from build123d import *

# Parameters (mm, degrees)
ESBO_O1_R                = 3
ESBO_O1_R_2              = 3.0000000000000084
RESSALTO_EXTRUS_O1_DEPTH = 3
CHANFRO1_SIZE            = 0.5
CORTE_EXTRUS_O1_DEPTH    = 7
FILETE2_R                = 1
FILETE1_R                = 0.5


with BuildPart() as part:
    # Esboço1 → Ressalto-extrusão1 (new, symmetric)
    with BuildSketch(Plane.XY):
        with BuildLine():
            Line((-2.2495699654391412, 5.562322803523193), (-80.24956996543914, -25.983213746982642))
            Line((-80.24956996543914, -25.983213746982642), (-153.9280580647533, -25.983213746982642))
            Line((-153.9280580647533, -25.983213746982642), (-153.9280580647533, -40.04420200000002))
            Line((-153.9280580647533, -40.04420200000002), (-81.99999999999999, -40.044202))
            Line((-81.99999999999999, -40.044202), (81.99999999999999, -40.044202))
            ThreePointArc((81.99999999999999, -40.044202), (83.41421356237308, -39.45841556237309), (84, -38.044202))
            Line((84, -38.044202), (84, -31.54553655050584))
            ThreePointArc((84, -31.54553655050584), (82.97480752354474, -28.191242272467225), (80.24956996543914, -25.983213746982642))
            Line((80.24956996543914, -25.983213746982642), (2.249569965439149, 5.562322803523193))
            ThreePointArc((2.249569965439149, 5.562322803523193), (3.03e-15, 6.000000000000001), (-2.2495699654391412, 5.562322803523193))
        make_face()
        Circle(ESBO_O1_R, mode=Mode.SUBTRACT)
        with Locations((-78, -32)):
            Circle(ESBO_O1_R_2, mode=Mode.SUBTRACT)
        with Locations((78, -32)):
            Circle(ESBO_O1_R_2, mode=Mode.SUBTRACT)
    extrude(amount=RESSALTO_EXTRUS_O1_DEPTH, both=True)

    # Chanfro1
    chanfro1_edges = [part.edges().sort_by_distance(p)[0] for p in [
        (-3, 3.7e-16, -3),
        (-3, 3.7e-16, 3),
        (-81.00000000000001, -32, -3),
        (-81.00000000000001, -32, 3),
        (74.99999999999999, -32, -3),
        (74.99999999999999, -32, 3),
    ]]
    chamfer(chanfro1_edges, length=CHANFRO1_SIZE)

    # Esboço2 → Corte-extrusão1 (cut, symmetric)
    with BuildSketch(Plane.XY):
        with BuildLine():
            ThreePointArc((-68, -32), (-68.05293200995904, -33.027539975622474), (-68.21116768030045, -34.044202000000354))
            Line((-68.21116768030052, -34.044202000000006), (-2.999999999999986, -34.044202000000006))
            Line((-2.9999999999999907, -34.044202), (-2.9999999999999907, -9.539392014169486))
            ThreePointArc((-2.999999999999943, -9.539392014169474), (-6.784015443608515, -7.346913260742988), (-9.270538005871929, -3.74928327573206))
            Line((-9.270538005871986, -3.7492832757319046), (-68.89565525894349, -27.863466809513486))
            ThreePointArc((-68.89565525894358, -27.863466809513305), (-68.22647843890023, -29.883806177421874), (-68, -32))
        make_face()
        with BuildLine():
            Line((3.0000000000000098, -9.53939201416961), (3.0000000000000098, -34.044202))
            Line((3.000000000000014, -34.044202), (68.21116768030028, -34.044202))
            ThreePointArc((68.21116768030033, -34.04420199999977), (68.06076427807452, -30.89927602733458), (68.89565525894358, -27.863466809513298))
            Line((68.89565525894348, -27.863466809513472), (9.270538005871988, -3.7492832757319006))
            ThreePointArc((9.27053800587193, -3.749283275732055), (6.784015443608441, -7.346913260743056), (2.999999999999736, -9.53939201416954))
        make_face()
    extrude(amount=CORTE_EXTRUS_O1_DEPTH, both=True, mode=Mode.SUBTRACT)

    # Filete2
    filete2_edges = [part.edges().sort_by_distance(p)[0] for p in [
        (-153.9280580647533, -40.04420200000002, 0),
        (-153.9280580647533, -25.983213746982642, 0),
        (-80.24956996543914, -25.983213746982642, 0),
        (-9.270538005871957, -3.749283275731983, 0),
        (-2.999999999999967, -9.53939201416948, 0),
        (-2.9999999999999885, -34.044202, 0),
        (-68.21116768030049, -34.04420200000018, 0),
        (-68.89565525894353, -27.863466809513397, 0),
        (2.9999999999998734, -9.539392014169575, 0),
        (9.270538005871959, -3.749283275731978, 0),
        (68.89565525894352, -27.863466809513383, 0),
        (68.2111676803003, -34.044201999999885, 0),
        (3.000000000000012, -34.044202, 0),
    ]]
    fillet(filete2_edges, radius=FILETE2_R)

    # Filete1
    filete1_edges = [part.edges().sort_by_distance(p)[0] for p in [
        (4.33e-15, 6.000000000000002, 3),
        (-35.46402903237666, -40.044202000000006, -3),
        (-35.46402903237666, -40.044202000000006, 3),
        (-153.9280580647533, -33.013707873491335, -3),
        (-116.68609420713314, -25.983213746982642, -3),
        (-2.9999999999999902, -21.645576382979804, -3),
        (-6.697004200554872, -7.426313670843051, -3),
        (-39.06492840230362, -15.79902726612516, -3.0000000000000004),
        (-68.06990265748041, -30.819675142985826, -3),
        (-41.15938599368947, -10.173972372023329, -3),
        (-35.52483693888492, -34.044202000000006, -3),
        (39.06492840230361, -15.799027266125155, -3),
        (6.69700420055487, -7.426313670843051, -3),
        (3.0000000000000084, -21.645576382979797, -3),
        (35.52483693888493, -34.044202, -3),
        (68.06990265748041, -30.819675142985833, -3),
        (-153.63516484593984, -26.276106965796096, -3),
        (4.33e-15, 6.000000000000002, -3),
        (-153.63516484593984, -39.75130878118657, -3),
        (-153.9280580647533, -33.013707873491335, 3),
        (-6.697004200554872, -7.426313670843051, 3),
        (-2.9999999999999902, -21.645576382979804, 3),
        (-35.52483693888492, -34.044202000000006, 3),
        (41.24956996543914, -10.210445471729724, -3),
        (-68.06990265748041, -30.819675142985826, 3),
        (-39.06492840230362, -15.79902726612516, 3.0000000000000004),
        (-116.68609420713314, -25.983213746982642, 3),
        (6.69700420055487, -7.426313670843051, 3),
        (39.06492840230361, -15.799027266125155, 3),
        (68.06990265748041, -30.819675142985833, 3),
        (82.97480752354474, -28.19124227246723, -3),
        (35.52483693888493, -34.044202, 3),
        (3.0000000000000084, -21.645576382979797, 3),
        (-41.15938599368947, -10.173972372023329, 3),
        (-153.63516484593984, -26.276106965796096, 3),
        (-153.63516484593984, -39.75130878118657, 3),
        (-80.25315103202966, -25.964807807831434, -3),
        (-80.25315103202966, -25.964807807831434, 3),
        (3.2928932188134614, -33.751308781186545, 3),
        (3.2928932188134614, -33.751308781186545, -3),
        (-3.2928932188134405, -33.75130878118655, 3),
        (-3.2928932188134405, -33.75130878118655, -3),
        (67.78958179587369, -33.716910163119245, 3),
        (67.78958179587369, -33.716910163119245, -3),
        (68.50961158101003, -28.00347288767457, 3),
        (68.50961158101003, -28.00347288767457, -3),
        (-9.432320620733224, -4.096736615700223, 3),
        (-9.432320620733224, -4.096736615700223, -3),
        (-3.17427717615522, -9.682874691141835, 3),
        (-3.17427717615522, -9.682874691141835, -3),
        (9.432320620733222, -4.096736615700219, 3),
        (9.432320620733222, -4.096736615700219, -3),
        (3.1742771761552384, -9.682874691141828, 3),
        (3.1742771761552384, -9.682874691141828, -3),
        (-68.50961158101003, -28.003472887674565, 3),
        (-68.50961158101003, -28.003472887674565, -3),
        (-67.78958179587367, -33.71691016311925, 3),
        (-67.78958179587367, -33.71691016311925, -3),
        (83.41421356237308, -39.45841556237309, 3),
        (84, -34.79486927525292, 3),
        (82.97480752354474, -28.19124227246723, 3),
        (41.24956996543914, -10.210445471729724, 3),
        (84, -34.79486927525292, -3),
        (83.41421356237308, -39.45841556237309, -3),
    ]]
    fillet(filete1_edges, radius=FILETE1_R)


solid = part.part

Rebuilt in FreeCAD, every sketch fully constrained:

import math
import FreeCAD as App
import Part
import Sketcher
Q = App.Units.Quantity


def edges_at(feature, points):
    """Names of the edges that pass closest to the given points."""
    edges = feature.Shape.Edges
    near = lambda p: min(range(len(edges)), key=lambda i: edges[i].distToShape(Part.Vertex(*p))[0])
    return sorted({f"Edge{near(p) + 1}" for p in points})

doc = App.newDocument("Part")
body = doc.addObject("PartDesign::Body", "Body")

# Sketch on XY plane
sketch1 = doc.addObject("Sketcher::SketchObject", "Sketch")
body.addObject(sketch1)
sketch1.AttachmentSupport = (doc.XY_Plane, [""])
sketch1.MapMode = "FlatFace"
sketch1.addGeometry([
    Part.LineSegment(App.Vector(-2.2, 5.6, 0), App.Vector(-80.2, -26, 0)),  # 0
    Part.LineSegment(App.Vector(-80.2, -26, 0), App.Vector(-153.9, -26, 0)),  # 1
    Part.LineSegment(App.Vector(-153.9, -26, 0), App.Vector(-153.9, -40, 0)),  # 2
    Part.LineSegment(App.Vector(-153.9, -40, 0), App.Vector(82, -40, 0)),  # 3
    Part.ArcOfCircle(Part.Circle(App.Vector(82, -38, 0), App.Vector(0, 0, 1), 2), math.radians(-90), math.radians(0)),  # 4
    Part.LineSegment(App.Vector(84, -38, 0), App.Vector(84, -31.5, 0)),  # 5
    Part.ArcOfCircle(Part.Circle(App.Vector(78, -31.5, 0), App.Vector(0, 0, 1), 6), math.radians(0), math.radians(68)),  # 6
    Part.LineSegment(App.Vector(80.2, -26, 0), App.Vector(2.2, 5.6, 0)),  # 7
    Part.ArcOfCircle(Part.Circle(App.Vector(0, 0, 0), App.Vector(0, 0, 1), 6), math.radians(68), math.radians(112)),  # 8
    Part.Circle(App.Vector(-78, -32, 0), App.Vector(0, 0, 1), 3),  # 9
    Part.Circle(App.Vector(78, -32, 0), App.Vector(0, 0, 1), 3),  # 10
    Part.Circle(App.Vector(0, 0, 0), App.Vector(0, 0, 1), 3),  # 11
], False)
sketch1.addConstraint([
    Sketcher.Constraint("Coincident", 0, 2, 1, 1),
    Sketcher.Constraint("Coincident", 1, 2, 2, 1),
    Sketcher.Constraint("Coincident", 2, 2, 3, 1),
    Sketcher.Constraint("Tangent", 3, 2, 4, 1),
    Sketcher.Constraint("Tangent", 4, 2, 5, 1),
    Sketcher.Constraint("Tangent", 5, 2, 6, 1),
    Sketcher.Constraint("Tangent", 6, 2, 7, 1),
    Sketcher.Constraint("Tangent", 7, 2, 8, 1),
    Sketcher.Constraint("Tangent", 8, 2, 0, 1),
    Sketcher.Constraint("Horizontal", 1),
    Sketcher.Constraint("Vertical", 2),
    Sketcher.Constraint("Horizontal", 3),
    Sketcher.Constraint("Vertical", 5),
    Sketcher.Constraint("Coincident", 8, 3, -1, 1),
    Sketcher.Constraint("Coincident", 11, 3, -1, 1),
    Sketcher.Constraint("Equal", 6, 8),
    Sketcher.Constraint("Equal", 9, 10),
    Sketcher.Constraint("Equal", 10, 11),
    Sketcher.Constraint("Symmetric", 9, 3, 10, 3, -2),
    Sketcher.Constraint("Symmetric", 0, 2, 6, 2, -2),
    Sketcher.Constraint("Vertical", 6, 3, 10, 3),
    Sketcher.Constraint("Diameter", 9, Q("6 mm")),
    Sketcher.Constraint("Radius", 4, Q("2 mm")),
    Sketcher.Constraint("Radius", 6, Q("6 mm")),
    Sketcher.Constraint("DistanceX", -1, 1, 4, 3, Q("82 mm")),
    Sketcher.Constraint("DistanceY", 9, 3, -1, 1, Q("32 mm")),
    Sketcher.Constraint("DistanceX", 1, 2, 1, 1, Q("73.678488 mm")),
    Sketcher.Constraint("DistanceX", 3, 1, 3, 2, Q("235.928058 mm")),
    Sketcher.Constraint("DistanceY", 2, 2, 2, 1, Q("14.060988 mm")),
])
pad1 = doc.addObject("PartDesign::Pad", "Pad")
body.addObject(pad1)
pad1.Profile = sketch1
pad1.Length = 6
pad1.Midplane = True
doc.recompute()

chamfer = doc.addObject("PartDesign::Chamfer", "Chamfer")
body.addObject(chamfer)
chamfer.Base = (pad1, edges_at(pad1, [
    (-3, 0, -3),
    (-3, 0, 3),
    (-81, -32, -3),
    (-81, -32, 3),
    (75, -32, -3),
    (75, -32, 3),
]))
chamfer.Size = 0.5

# Sketch on XY plane
sketch2 = doc.addObject("Sketcher::SketchObject", "Sketch001")
body.addObject(sketch2)
sketch2.AttachmentSupport = (doc.XY_Plane, [""])
sketch2.MapMode = "FlatFace"
sketch2.addGeometry([
    Part.LineSegment(App.Vector(-68, -34, 0), App.Vector(-3, -34, 0)),  # 0
    Part.LineSegment(App.Vector(-3, -34, 0), App.Vector(-3, -10, 0)),  # 1
    Part.ArcOfCircle(Part.Circle(App.Vector(0, 0, 0), App.Vector(0, 0, 1), 10), math.radians(-158), math.radians(-107)),  # 2
    Part.LineSegment(App.Vector(-9, -4, 0), App.Vector(-69, -28, 0)),  # 3
    Part.ArcOfCircle(Part.Circle(App.Vector(-78, -32, 0), App.Vector(0, 0, 1), 10), math.radians(-12), math.radians(24)),  # 4
    Part.LineSegment(App.Vector(3, -10, 0), App.Vector(3, -34, 0)),  # 5
    Part.LineSegment(App.Vector(3, -34, 0), App.Vector(68, -34, 0)),  # 6
    Part.ArcOfCircle(Part.Circle(App.Vector(78, -32, 0), App.Vector(0, 0, 1), 10), math.radians(156), math.radians(192)),  # 7
    Part.LineSegment(App.Vector(69, -28, 0), App.Vector(9, -4, 0)),  # 8
    Part.ArcOfCircle(Part.Circle(App.Vector(0, 0, 0), App.Vector(0, 0, 1), 10), math.radians(-73), math.radians(-22)),  # 9
], False)
sketch2.addConstraint([
    Sketcher.Constraint("Coincident", 0, 2, 1, 1),
    Sketcher.Constraint("Coincident", 1, 2, 2, 2),
    Sketcher.Constraint("Coincident", 2, 1, 3, 1),
    Sketcher.Constraint("Coincident", 3, 2, 4, 2),
    Sketcher.Constraint("Coincident", 4, 1, 0, 1),
    Sketcher.Constraint("Coincident", 5, 2, 6, 1),
    Sketcher.Constraint("Coincident", 6, 2, 7, 2),
    Sketcher.Constraint("Coincident", 7, 1, 8, 1),
    Sketcher.Constraint("Coincident", 8, 2, 9, 2),
    Sketcher.Constraint("Coincident", 9, 1, 5, 1),
    Sketcher.Constraint("Horizontal", 0),
    Sketcher.Constraint("Vertical", 1),
    Sketcher.Constraint("Vertical", 5),
    Sketcher.Constraint("Horizontal", 6),
    Sketcher.Constraint("Coincident", 2, 3, -1, 1),
    Sketcher.Constraint("Coincident", 9, 3, -1, 1),
    Sketcher.Constraint("Equal", 2, 4),
    Sketcher.Constraint("Equal", 4, 7),
    Sketcher.Constraint("Equal", 7, 9),
    Sketcher.Constraint("Symmetric", 4, 3, 7, 3, -2),
    Sketcher.Constraint("Symmetric", 0, 2, 5, 2, -2),
    Sketcher.Constraint("Horizontal", 3, 2, 7, 1),
    Sketcher.Constraint("Horizontal", 2, 1, 8, 2),
    Sketcher.Constraint("Radius", 2, Q("10 mm")),
    Sketcher.Constraint("DistanceX", 4, 3, -1, 1, Q("78 mm")),
    Sketcher.Constraint("DistanceY", 4, 3, -1, 1, Q("32 mm")),
    Sketcher.Constraint("DistanceX", 0, 2, -1, 1, Q("3 mm")),
    Sketcher.Constraint("DistanceY", 1, 1, 1, 2, Q("24.50481 mm")),
    Sketcher.Constraint("DistanceX", 2, 1, -1, 1, Q("9.270538 mm")),
    Sketcher.Constraint("Distance", 3, Q("64.316782 mm")),
])
pocket1 = doc.addObject("PartDesign::Pocket", "Pocket")
body.addObject(pocket1)
pocket1.Profile = sketch2
pocket1.Length = 14
pocket1.Midplane = True
doc.recompute()

fillet = doc.addObject("PartDesign::Fillet", "Fillet")
body.addObject(fillet)
fillet.Base = (pocket1, edges_at(pocket1, [
    (-153.928, -40.044, 0),
    (-153.928, -25.983, 0),
    (-80.25, -25.983, 0),
    (-9.271, -3.749, 0),
    (-3, -9.539, 0),
    (-3, -34.044, 0),
    (-68.211, -34.044, 0),
    (-68.896, -27.863, 0),
    (3, -9.539, 0),
    (9.271, -3.749, 0),
    (68.896, -27.863, 0),
    (68.211, -34.044, 0),
    (3, -34.044, 0),
]))
fillet.Radius = 1
doc.recompute()

fillet2 = doc.addObject("PartDesign::Fillet", "Fillet001")
body.addObject(fillet2)
fillet2.Base = (fillet, edges_at(fillet, [
    (0, 6, 3),
    (-35.464, -40.044, -3),
    (-35.464, -40.044, 3),
    (-153.928, -33.014, -3),
    (-116.686, -25.983, -3),
    (-3, -21.646, -3),
    (-6.697, -7.426, -3),
    (-39.065, -15.799, -3),
    (-68.07, -30.82, -3),
    (-41.159, -10.174, -3),
    (-35.525, -34.044, -3),
    (39.065, -15.799, -3),
    (6.697, -7.426, -3),
    (3, -21.646, -3),
    (35.525, -34.044, -3),
    (68.07, -30.82, -3),
    (-153.635, -26.276, -3),
    (0, 6, -3),
    (-153.635, -39.751, -3),
    (-153.928, -33.014, 3),
    (-6.697, -7.426, 3),
    (-3, -21.646, 3),
    (-35.525, -34.044, 3),
    (41.25, -10.21, -3),
    (-68.07, -30.82, 3),
    (-39.065, -15.799, 3),
    (-116.686, -25.983, 3),
    (6.697, -7.426, 3),
    (39.065, -15.799, 3),
    (68.07, -30.82, 3),
    (82.975, -28.191, -3),
    (35.525, -34.044, 3),
    (3, -21.646, 3),
    (-41.159, -10.174, 3),
    (-153.635, -26.276, 3),
    (-153.635, -39.751, 3),
    (-80.253, -25.965, -3),
    (-80.253, -25.965, 3),
    (3.293, -33.751, 3),
    (3.293, -33.751, -3),
    (-3.293, -33.751, 3),
    (-3.293, -33.751, -3),
    (67.79, -33.717, 3),
    (67.79, -33.717, -3),
    (68.51, -28.003, 3),
    (68.51, -28.003, -3),
    (-9.432, -4.097, 3),
    (-9.432, -4.097, -3),
    (-3.174, -9.683, 3),
    (-3.174, -9.683, -3),
    (9.432, -4.097, 3),
    (9.432, -4.097, -3),
    (3.174, -9.683, 3),
    (3.174, -9.683, -3),
    (-68.51, -28.003, 3),
    (-68.51, -28.003, -3),
    (-67.79, -33.717, 3),
    (-67.79, -33.717, -3),
    (83.414, -39.458, 3),
    (84, -34.795, 3),
    (82.975, -28.191, 3),
    (41.25, -10.21, 3),
    (84, -34.795, -3),
    (83.414, -39.458, -3),
]))
fillet2.Radius = 0.5

doc.recompute()
